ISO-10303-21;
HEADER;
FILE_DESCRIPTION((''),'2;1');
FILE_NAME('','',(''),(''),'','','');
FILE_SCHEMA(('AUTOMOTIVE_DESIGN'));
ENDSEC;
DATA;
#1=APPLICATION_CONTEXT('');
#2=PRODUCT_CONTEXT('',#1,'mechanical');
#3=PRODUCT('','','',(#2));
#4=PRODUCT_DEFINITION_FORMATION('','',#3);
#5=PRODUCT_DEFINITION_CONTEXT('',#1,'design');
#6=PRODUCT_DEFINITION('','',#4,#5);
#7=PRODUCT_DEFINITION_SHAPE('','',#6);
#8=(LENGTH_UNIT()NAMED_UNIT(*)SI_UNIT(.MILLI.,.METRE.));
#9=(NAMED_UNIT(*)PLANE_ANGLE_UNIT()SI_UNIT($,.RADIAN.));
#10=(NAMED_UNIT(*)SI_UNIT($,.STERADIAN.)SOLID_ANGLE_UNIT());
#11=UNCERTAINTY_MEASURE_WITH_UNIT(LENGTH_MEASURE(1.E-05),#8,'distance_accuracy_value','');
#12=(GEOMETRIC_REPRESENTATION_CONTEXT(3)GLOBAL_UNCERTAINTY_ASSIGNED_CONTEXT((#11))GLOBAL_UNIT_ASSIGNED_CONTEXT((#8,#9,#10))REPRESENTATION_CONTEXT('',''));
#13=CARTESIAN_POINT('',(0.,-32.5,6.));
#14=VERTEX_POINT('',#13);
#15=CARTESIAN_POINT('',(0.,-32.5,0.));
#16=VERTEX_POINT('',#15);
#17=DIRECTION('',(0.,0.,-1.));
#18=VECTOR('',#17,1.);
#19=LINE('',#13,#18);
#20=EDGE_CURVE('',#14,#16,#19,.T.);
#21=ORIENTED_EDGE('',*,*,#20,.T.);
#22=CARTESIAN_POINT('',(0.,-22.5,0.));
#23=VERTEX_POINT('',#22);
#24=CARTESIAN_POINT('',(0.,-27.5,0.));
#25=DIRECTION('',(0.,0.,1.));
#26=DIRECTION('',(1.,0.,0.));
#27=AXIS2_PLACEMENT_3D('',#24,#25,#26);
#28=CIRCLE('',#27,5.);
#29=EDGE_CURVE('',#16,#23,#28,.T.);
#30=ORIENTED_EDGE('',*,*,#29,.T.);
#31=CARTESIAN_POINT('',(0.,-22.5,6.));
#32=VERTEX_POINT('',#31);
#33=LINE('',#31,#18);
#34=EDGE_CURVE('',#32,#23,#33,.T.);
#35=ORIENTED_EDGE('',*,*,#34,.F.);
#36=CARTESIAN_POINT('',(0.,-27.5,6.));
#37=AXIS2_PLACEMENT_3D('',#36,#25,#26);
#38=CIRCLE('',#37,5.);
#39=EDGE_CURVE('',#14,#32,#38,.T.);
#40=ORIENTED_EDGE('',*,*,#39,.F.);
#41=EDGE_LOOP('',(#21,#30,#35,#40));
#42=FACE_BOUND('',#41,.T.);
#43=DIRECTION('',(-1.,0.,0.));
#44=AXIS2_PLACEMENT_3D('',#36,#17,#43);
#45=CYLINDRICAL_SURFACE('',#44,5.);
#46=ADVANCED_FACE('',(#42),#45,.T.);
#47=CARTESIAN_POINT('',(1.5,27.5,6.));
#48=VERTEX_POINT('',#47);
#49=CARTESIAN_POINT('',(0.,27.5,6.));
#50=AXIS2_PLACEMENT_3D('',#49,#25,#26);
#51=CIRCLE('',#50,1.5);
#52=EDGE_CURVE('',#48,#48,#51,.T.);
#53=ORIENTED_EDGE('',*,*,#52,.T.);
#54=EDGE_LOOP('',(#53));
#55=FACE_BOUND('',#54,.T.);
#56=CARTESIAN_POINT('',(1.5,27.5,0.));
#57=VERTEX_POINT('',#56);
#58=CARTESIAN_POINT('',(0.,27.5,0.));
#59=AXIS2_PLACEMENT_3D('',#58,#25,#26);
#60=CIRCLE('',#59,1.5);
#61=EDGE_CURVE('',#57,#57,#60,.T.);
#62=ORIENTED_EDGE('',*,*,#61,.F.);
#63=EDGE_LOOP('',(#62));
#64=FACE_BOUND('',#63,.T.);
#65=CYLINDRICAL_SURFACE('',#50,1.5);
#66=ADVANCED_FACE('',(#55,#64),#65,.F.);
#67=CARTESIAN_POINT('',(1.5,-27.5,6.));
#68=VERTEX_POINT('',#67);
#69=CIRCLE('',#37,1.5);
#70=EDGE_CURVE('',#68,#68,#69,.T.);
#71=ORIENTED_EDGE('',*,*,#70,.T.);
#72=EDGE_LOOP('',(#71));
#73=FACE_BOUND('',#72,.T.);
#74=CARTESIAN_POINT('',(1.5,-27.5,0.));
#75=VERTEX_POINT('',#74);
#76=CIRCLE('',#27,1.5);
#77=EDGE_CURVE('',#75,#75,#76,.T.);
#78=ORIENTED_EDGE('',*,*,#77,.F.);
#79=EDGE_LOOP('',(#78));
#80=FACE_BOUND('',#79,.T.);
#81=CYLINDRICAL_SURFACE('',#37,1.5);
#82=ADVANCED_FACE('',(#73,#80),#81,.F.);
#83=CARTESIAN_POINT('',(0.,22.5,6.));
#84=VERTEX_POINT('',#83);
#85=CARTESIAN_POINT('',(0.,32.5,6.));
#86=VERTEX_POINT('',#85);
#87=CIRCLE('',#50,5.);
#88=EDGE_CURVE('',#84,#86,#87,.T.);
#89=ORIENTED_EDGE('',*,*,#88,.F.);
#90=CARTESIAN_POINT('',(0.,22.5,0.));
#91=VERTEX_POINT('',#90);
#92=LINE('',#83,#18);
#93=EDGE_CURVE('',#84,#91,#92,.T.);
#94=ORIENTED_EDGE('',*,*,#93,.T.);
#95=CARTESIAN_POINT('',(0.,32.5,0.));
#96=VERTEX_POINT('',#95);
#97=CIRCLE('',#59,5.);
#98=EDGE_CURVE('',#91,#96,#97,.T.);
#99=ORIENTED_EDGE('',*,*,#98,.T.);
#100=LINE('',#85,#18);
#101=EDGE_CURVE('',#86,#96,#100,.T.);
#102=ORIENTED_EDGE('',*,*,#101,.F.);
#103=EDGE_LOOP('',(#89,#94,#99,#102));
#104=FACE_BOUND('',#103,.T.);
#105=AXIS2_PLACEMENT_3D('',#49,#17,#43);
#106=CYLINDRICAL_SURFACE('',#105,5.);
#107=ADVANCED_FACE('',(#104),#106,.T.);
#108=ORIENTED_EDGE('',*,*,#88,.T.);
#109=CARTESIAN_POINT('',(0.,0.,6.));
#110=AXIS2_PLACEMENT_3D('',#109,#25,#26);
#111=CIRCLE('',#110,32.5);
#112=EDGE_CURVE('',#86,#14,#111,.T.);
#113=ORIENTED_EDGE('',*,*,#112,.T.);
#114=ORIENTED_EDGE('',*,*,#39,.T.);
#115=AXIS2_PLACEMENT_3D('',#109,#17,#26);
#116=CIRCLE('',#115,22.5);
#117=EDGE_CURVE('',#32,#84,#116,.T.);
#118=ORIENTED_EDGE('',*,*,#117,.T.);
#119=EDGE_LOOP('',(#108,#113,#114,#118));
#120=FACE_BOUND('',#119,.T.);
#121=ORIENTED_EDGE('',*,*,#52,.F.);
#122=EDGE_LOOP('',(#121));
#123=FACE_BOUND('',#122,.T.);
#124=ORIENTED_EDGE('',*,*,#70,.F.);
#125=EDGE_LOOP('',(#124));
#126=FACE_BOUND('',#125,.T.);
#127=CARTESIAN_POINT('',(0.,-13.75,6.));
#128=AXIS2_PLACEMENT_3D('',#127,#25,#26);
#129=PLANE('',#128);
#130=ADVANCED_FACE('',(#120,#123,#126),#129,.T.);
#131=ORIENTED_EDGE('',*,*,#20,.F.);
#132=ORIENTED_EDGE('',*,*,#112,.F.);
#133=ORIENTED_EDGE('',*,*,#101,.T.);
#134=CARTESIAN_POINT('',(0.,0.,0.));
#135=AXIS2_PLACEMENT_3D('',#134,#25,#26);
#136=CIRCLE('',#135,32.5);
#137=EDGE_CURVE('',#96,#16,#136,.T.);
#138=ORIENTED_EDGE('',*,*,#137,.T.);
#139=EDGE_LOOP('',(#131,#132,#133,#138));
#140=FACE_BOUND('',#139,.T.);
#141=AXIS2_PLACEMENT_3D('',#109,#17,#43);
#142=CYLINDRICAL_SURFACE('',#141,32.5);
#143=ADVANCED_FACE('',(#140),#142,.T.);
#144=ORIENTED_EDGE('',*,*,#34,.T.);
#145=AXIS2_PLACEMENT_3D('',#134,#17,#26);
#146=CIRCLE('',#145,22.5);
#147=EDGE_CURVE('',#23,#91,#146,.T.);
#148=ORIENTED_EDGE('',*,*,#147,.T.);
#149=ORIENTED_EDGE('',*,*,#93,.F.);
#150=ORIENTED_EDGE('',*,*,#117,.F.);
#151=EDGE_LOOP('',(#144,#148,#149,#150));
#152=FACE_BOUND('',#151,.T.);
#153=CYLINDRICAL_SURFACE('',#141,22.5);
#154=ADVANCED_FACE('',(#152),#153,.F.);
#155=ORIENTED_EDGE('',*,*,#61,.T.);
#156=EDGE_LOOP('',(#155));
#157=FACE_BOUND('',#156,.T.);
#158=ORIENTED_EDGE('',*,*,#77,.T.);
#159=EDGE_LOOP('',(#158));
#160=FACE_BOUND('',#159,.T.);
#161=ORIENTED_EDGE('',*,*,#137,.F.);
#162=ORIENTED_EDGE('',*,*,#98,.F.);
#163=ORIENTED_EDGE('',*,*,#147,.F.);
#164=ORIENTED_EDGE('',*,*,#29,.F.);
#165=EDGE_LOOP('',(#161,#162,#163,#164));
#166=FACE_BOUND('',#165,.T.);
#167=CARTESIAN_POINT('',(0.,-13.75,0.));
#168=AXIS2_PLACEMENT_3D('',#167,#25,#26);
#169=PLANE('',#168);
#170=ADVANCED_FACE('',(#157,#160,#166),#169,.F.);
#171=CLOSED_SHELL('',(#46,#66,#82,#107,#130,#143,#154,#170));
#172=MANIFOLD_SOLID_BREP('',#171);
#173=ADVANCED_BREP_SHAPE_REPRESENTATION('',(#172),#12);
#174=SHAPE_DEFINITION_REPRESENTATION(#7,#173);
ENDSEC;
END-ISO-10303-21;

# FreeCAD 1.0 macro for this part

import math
import FreeCAD as App
import Part
import Sketcher

V = App.Vector
Q = App.Units.Quantity

doc = App.newDocument("Part")
body = doc.addObject("PartDesign::Body", "Body")

# Sketch on XY plane
sketch1 = doc.addObject("Sketcher::SketchObject", "Sketch")
body.addObject(sketch1)
sketch1.AttachmentSupport = (doc.XY_Plane, [""])
sketch1.MapMode = "FlatFace"
sketch1.addGeometry([
    Part.ArcOfCircle(Part.Circle(V(0, 0, 0), V(0, 0, 1), 32), math.radians(90), math.radians(270)),
    Part.ArcOfCircle(Part.Circle(V(0, -28, 0), V(0, 0, 1), 5), math.radians(-90), math.radians(90)),
    Part.ArcOfCircle(Part.Circle(V(0, 0, 0), V(0, 0, 1), 22), math.radians(90), math.radians(270)),
    Part.ArcOfCircle(Part.Circle(V(0, 28, 0), V(0, 0, 1), 5), math.radians(-90), math.radians(90)),
], False)
sketch1.addConstraint([
    Sketcher.Constraint("Tangent", 0, 2, 1, 1),
    Sketcher.Constraint("Tangent", 1, 2, 2, 2),
    Sketcher.Constraint("Tangent", 2, 1, 3, 1),
    Sketcher.Constraint("Tangent", 3, 2, 0, 1),
    Sketcher.Constraint("Coincident", 0, 3, -1, 1),
    Sketcher.Constraint("Coincident", 2, 3, -1, 1),
    Sketcher.Constraint("PointOnObject", 1, 3, -2),
    Sketcher.Constraint("PointOnObject", 3, 3, -2),
    Sketcher.Constraint("Radius", 1, Q("5 mm")),
    Sketcher.Constraint("Radius", 0, Q("32.5 mm")),
])
pad1 = doc.addObject("PartDesign::Pad", "Pad")
body.addObject(pad1)
pad1.Profile = sketch1
pad1.Length = 6

# Sketch on XY plane
sketch2 = doc.addObject("Sketcher::SketchObject", "Sketch001")
body.addObject(sketch2)
sketch2.AttachmentSupport = (doc.XY_Plane, [""])
sketch2.MapMode = "FlatFace"
sketch2.AttachmentOffset = App.Placement(V(0, 0, 6), App.Rotation())
sketch2.addGeometry([
    Part.Circle(V(0, 27.5, 0), V(0, 0, 1), 1.5),
    Part.Circle(V(0, -27.5, 0), V(0, 0, 1), 1.5),
], False)
sketch2.addConstraint([
    Sketcher.Constraint("Equal", 0, 1),
    Sketcher.Constraint("Symmetric", 0, 3, 1, 3, -1, 1),
    Sketcher.Constraint("PointOnObject", 0, 3, -2),
    Sketcher.Constraint("Diameter", 0, Q("3 mm")),
    Sketcher.Constraint("DistanceY", 1, 3, 0, 3, Q("55 mm")),
])
doc.recompute()
hole = doc.addObject("PartDesign::Hole", "Hole")
body.addObject(hole)
hole.Profile = sketch2
hole.ThreadType = "None"
hole.Diameter = 3
hole.DepthType = "ThroughAll"

doc.recompute()
